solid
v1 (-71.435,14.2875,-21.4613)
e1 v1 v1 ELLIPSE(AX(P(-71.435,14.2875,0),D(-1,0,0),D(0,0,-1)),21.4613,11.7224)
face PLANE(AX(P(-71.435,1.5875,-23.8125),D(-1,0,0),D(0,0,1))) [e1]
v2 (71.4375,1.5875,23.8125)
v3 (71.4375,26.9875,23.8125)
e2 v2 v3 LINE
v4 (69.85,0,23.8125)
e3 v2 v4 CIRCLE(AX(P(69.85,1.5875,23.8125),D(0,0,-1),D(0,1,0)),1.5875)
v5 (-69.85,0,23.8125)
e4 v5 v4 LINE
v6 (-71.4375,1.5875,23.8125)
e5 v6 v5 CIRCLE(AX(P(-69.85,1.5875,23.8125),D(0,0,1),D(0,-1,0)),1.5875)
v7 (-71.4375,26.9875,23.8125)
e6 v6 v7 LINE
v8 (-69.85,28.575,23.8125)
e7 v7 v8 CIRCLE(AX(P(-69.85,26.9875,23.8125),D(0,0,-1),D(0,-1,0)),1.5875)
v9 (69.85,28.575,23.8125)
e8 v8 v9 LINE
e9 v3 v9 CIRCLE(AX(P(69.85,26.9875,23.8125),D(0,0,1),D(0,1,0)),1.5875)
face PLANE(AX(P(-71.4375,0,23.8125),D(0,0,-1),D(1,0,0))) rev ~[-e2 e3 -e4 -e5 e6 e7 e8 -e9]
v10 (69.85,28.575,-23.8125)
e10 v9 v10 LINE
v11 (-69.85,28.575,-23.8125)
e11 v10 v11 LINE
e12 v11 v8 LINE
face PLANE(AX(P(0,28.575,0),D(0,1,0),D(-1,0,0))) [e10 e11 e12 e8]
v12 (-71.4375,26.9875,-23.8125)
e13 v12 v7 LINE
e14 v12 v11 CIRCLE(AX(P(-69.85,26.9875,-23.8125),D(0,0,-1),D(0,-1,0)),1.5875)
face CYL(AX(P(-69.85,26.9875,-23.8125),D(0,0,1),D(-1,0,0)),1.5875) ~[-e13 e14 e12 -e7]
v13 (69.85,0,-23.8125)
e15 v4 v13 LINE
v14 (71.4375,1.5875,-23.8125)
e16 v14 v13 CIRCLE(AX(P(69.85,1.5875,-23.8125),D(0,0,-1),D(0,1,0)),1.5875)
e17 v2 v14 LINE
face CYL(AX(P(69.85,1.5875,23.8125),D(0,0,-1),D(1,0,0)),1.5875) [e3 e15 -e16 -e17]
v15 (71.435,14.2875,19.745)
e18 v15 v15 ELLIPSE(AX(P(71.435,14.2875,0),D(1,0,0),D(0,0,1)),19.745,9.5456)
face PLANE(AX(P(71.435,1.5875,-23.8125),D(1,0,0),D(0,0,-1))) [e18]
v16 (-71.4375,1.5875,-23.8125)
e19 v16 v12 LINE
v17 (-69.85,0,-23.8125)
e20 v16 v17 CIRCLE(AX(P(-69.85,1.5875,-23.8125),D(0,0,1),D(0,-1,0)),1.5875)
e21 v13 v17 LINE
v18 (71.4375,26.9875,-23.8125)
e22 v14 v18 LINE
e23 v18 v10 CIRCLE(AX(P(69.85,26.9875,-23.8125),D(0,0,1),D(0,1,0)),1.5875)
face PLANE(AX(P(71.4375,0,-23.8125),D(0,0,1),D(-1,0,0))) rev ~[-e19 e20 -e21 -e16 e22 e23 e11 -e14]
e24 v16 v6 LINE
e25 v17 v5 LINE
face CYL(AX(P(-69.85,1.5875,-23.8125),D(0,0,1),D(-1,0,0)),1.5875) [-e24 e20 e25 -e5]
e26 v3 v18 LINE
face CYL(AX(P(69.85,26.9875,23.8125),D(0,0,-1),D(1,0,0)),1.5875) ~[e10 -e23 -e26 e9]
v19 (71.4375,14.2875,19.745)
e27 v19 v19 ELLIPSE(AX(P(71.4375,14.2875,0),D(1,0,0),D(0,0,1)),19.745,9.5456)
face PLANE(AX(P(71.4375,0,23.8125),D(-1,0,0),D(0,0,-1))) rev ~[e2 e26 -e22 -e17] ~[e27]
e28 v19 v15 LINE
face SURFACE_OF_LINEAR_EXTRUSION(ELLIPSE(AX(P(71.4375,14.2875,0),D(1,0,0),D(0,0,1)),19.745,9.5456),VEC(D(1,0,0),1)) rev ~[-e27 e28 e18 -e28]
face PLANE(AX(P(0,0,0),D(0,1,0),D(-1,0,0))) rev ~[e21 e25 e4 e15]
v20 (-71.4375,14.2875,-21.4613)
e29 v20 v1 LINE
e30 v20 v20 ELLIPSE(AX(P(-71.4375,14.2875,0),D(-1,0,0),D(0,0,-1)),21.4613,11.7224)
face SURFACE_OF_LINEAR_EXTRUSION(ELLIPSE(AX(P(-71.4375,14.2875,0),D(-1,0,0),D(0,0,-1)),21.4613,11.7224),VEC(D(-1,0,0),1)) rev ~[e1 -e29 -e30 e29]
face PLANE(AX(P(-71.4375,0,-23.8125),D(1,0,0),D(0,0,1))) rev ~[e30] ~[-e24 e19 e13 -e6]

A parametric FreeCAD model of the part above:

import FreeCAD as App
import Part
import Sketcher
from FreeCAD import Vector
Q = App.Units.Quantity


def edges_at(feature, points):
    """Names of the edges that pass closest to the given points."""
    edges = feature.Shape.Edges
    near = lambda p: min(range(len(edges)), key=lambda i: edges[i].distToShape(Part.Vertex(*p))[0])
    return sorted({f"Edge{near(p) + 1}" for p in points})


def add_polygon(sketch, points):
    """Adds a closed chain of lines whose ends are joined by coincident constraints."""
    first, n = sketch.GeometryCount, len(points)
    for a, b in zip(points, points[1:] + points[:1]):
        sketch.addGeometry(Part.LineSegment(App.Vector(*a, 0), App.Vector(*b, 0)), False)
    for i in range(n):
        sketch.addConstraint(Sketcher.Constraint("Coincident", first + i, 2, first + (i + 1) % n, 1))

doc = App.newDocument("Part")
params = doc.addObject("Spreadsheet::Sheet", "Params")
for row, (alias, value) in enumerate([
    ("sketch1_width", "5.625 in"),
    ("sketch1_height", "1.875 in"),
    ("pad1_length", "1.125 in"),
    ("fillet_radius", "0.0625 in"),
    ("pocket1_length", "0.0000984 in"),
    ("pocket2_length", "0.0000984 in"),
], start=1):
    params.set(f"A{row}", alias)
    params.set(f"B{row}", "=" + value)
    params.setAlias(f"B{row}", alias)

body = doc.addObject("PartDesign::Body", "Body")

# Sketch on XZ plane
sketch1 = body.newObject("Sketcher::SketchObject", "Sketch")
sketch1.AttachmentSupport = (doc.getObject("XZ_Plane"), [""])
sketch1.MapMode = "FlatFace"
add_polygon(sketch1, [(-71, -24), (-71, 24), (71, 24), (71, -24)])  # lines 0-3
sketch1.addConstraint(Sketcher.Constraint("Vertical", 0))
sketch1.addConstraint(Sketcher.Constraint("Horizontal", 1))
sketch1.addConstraint(Sketcher.Constraint("Vertical", 2))
sketch1.addConstraint(Sketcher.Constraint("Horizontal", 3))
sketch1.addConstraint(Sketcher.Constraint("Symmetric", 0, 2, 2, 2, -1, 1))
sketch1.addConstraint(Sketcher.Constraint("DistanceX", 1, 1, 1, 2, Q("5.625 in")))
sketch1.addConstraint(Sketcher.Constraint("DistanceY", 0, 1, 0, 2, Q("1.875 in")))
sketch1.setExpression("Constraints[9]", "Params.sketch1_width")
sketch1.setExpression("Constraints[10]", "Params.sketch1_height")
pad1 = body.newObject("PartDesign::Pad", "Pad")
pad1.Profile = sketch1
pad1.setExpression("Length", "Params.pad1_length")
pad1.Reversed = True
doc.recompute()

fillet = body.newObject("PartDesign::Fillet", "Fillet")
fillet.Base = (pad1, edges_at(pad1, [
    (71.438, 28.575, 0),
    (71.438, 0, 0),
    (-71.438, 0, 0),
    (-71.438, 28.575, 0),
]))
fillet.setExpression("Radius", "Params.fillet_radius")

# Sketch on YZ plane
sketch2 = body.newObject("Sketcher::SketchObject", "Sketch001")
sketch2.AttachmentSupport = (doc.getObject("YZ_Plane"), [""])
sketch2.MapMode = "FlatFace"
sketch2.AttachmentOffset = App.Placement(Vector(0, 0, 2.8125 * 25.4), App.Rotation())
sketch2.addGeometry(Part.Ellipse(Vector(14.2875, 19.745, 0), Vector(4.7419, 0, 0), Vector(14.2875, 0, 0)), False)
sketch2.addConstraint(Sketcher.Constraint("Block", 0))
pocket1 = body.newObject("PartDesign::Pocket", "Pocket")
pocket1.Profile = sketch2
pocket1.setExpression("Length", "Params.pocket1_length")

# Sketch on YZ plane
sketch3 = body.newObject("Sketcher::SketchObject", "Sketch002")
sketch3.AttachmentSupport = (doc.getObject("YZ_Plane"), [""])
sketch3.MapMode = "FlatFace"
sketch3.AttachmentOffset = App.Placement(Vector(0, 0, -2.8125 * 25.4), App.Rotation())
sketch3.addGeometry(Part.Ellipse(Vector(14.2875, -21.4613, 0), Vector(26.0099, 0, 0), Vector(14.2875, 0, 0)), False)
sketch3.addConstraint(Sketcher.Constraint("Block", 0))
pocket2 = body.newObject("PartDesign::Pocket", "Pocket001")
pocket2.Profile = sketch3
pocket2.setExpression("Length", "Params.pocket2_length")
pocket2.Reversed = True

doc.recompute()
